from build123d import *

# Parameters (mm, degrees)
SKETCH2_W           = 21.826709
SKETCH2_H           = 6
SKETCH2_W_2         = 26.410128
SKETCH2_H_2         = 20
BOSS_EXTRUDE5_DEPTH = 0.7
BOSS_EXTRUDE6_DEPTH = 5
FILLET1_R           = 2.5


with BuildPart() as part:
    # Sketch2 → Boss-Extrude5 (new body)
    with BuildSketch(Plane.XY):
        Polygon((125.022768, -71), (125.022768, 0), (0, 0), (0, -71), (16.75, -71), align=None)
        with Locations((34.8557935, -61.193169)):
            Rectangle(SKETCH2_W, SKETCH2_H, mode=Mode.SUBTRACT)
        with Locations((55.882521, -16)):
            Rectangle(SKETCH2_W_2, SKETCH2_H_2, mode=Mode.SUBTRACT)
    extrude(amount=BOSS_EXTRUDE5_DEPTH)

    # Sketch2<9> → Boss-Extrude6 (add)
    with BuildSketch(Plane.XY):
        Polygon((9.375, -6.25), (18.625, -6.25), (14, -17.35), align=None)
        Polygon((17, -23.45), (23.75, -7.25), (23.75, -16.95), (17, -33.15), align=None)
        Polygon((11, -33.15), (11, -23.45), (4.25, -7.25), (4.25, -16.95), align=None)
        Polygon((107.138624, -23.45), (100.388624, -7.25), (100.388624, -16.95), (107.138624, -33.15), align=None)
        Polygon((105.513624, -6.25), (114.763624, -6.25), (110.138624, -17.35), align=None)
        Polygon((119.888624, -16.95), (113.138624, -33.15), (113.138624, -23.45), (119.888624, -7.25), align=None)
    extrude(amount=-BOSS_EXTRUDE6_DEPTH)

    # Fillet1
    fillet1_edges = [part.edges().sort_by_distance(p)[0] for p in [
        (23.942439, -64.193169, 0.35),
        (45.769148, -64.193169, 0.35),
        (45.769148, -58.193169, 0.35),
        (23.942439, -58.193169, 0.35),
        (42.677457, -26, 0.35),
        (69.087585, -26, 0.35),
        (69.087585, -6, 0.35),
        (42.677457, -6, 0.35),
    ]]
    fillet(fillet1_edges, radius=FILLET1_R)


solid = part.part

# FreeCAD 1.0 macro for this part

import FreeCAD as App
import Part
import Sketcher

V = App.Vector


def edges_at(feature, points):
    """Names of the edges that pass closest to the given points."""
    edges = feature.Shape.Edges
    near = lambda p: min(range(len(edges)), key=lambda i: edges[i].distToShape(Part.Vertex(*p))[0])
    return sorted({f"Edge{near(p) + 1}" for p in points})


def add_polygon(sketch, points):
    """Adds a closed chain of lines whose ends are joined by coincident constraints."""
    first, n = sketch.GeometryCount, len(points)
    for a, b in zip(points, points[1:] + points[:1]):
        sketch.addGeometry(Part.LineSegment(App.Vector(*a, 0), App.Vector(*b, 0)), False)
    for i in range(n):
        sketch.addConstraint(Sketcher.Constraint("Coincident", first + i, 2, first + (i + 1) % n, 1))

doc = App.newDocument("Part")
body = doc.addObject("PartDesign::Body", "Body")

# Sketch on XY plane
sketch1 = body.newObject("Sketcher::SketchObject", "Sketch")
sketch1.AttachmentSupport = (doc.getObject("XY_Plane"), [""])
sketch1.MapMode = "FlatFace"
add_polygon(sketch1, [(125, -71), (125, 0), (0, 0), (0, -71)])  # lines 0-3
add_polygon(sketch1, [(46, -64), (24, -64), (24, -58), (46, -58)])  # lines 4-7
add_polygon(sketch1, [(69, -26), (43, -26), (43, -6), (69, -6)])  # lines 8-11
sketch1.addConstraint([
    Sketcher.Constraint("Vertical", 0),
    Sketcher.Constraint("Horizontal", 1),
    Sketcher.Constraint("Vertical", 2),
    Sketcher.Constraint("Horizontal", 3),
    Sketcher.Constraint("Horizontal", 4),
    Sketcher.Constraint("Vertical", 5),
    Sketcher.Constraint("Horizontal", 6),
    Sketcher.Constraint("Vertical", 7),
    Sketcher.Constraint("Horizontal", 8),
    Sketcher.Constraint("Vertical", 9),
    Sketcher.Constraint("Horizontal", 10),
    Sketcher.Constraint("Vertical", 11),
    Sketcher.Constraint("Coincident", 1, 2, -1, 1),
    Sketcher.Constraint("DistanceY", 0, 1, 0, 2, 71.0),
    Sketcher.Constraint("DistanceY", 5, 1, 5, 2, 6.0),
    Sketcher.Constraint("DistanceY", 9, 1, 9, 2, 20.0),
    Sketcher.Constraint("DistanceY", 8, 2, -1, 1, 26.0),
    Sketcher.Constraint("DistanceX", 1, 2, 1, 1, 125.022768),
    Sketcher.Constraint("DistanceX", 4, 2, 4, 1, 21.826709),
    Sketcher.Constraint("DistanceX", 8, 2, 8, 1, 26.410128),
    Sketcher.Constraint("DistanceX", -1, 1, 4, 2, 23.942439),
    Sketcher.Constraint("DistanceY", 4, 2, -1, 1, 64.193169),
    Sketcher.Constraint("DistanceX", 8, 2, 6, 2, 3.091691),
])
pad1 = body.newObject("PartDesign::Pad", "Pad")
pad1.Profile = sketch1
pad1.Length = 0.7

# Sketch on XY plane
sketch2 = body.newObject("Sketcher::SketchObject", "Sketch001")
sketch2.AttachmentSupport = (doc.getObject("XY_Plane"), [""])
sketch2.MapMode = "FlatFace"
add_polygon(sketch2, [(19, -6), (9, -6), (14, -17)])  # lines 0-2
add_polygon(sketch2, [(24, -7), (17, -23), (17, -33), (24, -17)])  # lines 3-6
add_polygon(sketch2, [(11, -33), (11, -23), (4, -7), (4, -17)])  # lines 7-10
add_polygon(sketch2, [(107, -23), (100, -7), (100, -17), (107, -33)])  # lines 11-14
add_polygon(sketch2, [(115, -6), (106, -6), (110, -17)])  # lines 15-17
add_polygon(sketch2, [(113, -33), (120, -17), (120, -7), (113, -23)])  # lines 18-21
sketch2.addConstraint([
    Sketcher.Constraint("Horizontal", 0),
    Sketcher.Constraint("Vertical", 4),
    Sketcher.Constraint("Vertical", 6),
    Sketcher.Constraint("Vertical", 7),
    Sketcher.Constraint("Vertical", 9),
    Sketcher.Constraint("Vertical", 12),
    Sketcher.Constraint("Vertical", 14),
    Sketcher.Constraint("Horizontal", 15),
    Sketcher.Constraint("Vertical", 19),
    Sketcher.Constraint("Vertical", 21),
    Sketcher.Constraint("Parallel", 2, 3),
    Sketcher.Constraint("Parallel", 3, 5),
    Sketcher.Constraint("Parallel", 1, 8),
    Sketcher.Constraint("Parallel", 8, 10),
    Sketcher.Constraint("Parallel", 10, 11),
    Sketcher.Constraint("Parallel", 11, 13),
    Sketcher.Constraint("Parallel", 13, 16),
    Sketcher.Constraint("Parallel", 5, 17),
    Sketcher.Constraint("Parallel", 17, 18),
    Sketcher.Constraint("Parallel", 18, 20),
    Sketcher.Constraint("Horizontal", 3, 2, 7, 2),
    Sketcher.Constraint("Horizontal", 6, 2, 8, 2),
    Sketcher.Constraint("Horizontal", 5, 2, 9, 2),
    Sketcher.Constraint("Horizontal", 8, 2, 11, 2),
    Sketcher.Constraint("Horizontal", 9, 2, 12, 2),
    Sketcher.Constraint("Horizontal", 10, 2, 13, 2),
    Sketcher.Constraint("Horizontal", 2, 2, 15, 2),
    Sketcher.Constraint("Horizontal", 1, 2, 16, 2),
    Sketcher.Constraint("Horizontal", 12, 2, 18, 2),
    Sketcher.Constraint("Horizontal", 11, 2, 19, 2),
    Sketcher.Constraint("Horizontal", 14, 2, 20, 2),
    Sketcher.Constraint("Equal", 1, 2),
    Sketcher.Constraint("DistanceY", 4, 2, 4, 1, 9.7),
    Sketcher.Constraint("DistanceX", -1, 1, 1, 2, 14.0),
    Sketcher.Constraint("DistanceX", -1, 1, 3, 2, 17.0),
    Sketcher.Constraint("DistanceX", -1, 1, 7, 2, 11.0),
    Sketcher.Constraint("DistanceY", 6, 2, 2, 2, 1.0),
    Sketcher.Constraint("DistanceX", 14, 2, 16, 2, 3.0),
    Sketcher.Constraint("DistanceX", 14, 2, 20, 2, 6.0),
    Sketcher.Constraint("DistanceX", 0, 2, 0, 1, 9.25),
    Sketcher.Constraint("DistanceY", 1, 2, 0, 2, 11.1),
    Sketcher.Constraint("DistanceY", 3, 2, 1, 2, 6.1),
    Sketcher.Constraint("DistanceY", 0, 2, -1, 1, 6.25),
    Sketcher.Constraint("DistanceX", -1, 1, 11, 2, 100.388624),
])
pad2 = body.newObject("PartDesign::Pad", "Pad001")
pad2.Profile = sketch2
pad2.Length = 5
pad2.Reversed = True
doc.recompute()

fillet = body.newObject("PartDesign::Fillet", "Fillet")
fillet.Base = (pad2, edges_at(pad2, [
    (23.942, -64.193, 0.35),
    (45.769, -64.193, 0.35),
    (45.769, -58.193, 0.35),
    (23.942, -58.193, 0.35),
    (42.677, -26, 0.35),
    (69.088, -26, 0.35),
    (69.088, -6, 0.35),
    (42.677, -6, 0.35),
]))
fillet.Radius = 2.5

doc.recompute()
